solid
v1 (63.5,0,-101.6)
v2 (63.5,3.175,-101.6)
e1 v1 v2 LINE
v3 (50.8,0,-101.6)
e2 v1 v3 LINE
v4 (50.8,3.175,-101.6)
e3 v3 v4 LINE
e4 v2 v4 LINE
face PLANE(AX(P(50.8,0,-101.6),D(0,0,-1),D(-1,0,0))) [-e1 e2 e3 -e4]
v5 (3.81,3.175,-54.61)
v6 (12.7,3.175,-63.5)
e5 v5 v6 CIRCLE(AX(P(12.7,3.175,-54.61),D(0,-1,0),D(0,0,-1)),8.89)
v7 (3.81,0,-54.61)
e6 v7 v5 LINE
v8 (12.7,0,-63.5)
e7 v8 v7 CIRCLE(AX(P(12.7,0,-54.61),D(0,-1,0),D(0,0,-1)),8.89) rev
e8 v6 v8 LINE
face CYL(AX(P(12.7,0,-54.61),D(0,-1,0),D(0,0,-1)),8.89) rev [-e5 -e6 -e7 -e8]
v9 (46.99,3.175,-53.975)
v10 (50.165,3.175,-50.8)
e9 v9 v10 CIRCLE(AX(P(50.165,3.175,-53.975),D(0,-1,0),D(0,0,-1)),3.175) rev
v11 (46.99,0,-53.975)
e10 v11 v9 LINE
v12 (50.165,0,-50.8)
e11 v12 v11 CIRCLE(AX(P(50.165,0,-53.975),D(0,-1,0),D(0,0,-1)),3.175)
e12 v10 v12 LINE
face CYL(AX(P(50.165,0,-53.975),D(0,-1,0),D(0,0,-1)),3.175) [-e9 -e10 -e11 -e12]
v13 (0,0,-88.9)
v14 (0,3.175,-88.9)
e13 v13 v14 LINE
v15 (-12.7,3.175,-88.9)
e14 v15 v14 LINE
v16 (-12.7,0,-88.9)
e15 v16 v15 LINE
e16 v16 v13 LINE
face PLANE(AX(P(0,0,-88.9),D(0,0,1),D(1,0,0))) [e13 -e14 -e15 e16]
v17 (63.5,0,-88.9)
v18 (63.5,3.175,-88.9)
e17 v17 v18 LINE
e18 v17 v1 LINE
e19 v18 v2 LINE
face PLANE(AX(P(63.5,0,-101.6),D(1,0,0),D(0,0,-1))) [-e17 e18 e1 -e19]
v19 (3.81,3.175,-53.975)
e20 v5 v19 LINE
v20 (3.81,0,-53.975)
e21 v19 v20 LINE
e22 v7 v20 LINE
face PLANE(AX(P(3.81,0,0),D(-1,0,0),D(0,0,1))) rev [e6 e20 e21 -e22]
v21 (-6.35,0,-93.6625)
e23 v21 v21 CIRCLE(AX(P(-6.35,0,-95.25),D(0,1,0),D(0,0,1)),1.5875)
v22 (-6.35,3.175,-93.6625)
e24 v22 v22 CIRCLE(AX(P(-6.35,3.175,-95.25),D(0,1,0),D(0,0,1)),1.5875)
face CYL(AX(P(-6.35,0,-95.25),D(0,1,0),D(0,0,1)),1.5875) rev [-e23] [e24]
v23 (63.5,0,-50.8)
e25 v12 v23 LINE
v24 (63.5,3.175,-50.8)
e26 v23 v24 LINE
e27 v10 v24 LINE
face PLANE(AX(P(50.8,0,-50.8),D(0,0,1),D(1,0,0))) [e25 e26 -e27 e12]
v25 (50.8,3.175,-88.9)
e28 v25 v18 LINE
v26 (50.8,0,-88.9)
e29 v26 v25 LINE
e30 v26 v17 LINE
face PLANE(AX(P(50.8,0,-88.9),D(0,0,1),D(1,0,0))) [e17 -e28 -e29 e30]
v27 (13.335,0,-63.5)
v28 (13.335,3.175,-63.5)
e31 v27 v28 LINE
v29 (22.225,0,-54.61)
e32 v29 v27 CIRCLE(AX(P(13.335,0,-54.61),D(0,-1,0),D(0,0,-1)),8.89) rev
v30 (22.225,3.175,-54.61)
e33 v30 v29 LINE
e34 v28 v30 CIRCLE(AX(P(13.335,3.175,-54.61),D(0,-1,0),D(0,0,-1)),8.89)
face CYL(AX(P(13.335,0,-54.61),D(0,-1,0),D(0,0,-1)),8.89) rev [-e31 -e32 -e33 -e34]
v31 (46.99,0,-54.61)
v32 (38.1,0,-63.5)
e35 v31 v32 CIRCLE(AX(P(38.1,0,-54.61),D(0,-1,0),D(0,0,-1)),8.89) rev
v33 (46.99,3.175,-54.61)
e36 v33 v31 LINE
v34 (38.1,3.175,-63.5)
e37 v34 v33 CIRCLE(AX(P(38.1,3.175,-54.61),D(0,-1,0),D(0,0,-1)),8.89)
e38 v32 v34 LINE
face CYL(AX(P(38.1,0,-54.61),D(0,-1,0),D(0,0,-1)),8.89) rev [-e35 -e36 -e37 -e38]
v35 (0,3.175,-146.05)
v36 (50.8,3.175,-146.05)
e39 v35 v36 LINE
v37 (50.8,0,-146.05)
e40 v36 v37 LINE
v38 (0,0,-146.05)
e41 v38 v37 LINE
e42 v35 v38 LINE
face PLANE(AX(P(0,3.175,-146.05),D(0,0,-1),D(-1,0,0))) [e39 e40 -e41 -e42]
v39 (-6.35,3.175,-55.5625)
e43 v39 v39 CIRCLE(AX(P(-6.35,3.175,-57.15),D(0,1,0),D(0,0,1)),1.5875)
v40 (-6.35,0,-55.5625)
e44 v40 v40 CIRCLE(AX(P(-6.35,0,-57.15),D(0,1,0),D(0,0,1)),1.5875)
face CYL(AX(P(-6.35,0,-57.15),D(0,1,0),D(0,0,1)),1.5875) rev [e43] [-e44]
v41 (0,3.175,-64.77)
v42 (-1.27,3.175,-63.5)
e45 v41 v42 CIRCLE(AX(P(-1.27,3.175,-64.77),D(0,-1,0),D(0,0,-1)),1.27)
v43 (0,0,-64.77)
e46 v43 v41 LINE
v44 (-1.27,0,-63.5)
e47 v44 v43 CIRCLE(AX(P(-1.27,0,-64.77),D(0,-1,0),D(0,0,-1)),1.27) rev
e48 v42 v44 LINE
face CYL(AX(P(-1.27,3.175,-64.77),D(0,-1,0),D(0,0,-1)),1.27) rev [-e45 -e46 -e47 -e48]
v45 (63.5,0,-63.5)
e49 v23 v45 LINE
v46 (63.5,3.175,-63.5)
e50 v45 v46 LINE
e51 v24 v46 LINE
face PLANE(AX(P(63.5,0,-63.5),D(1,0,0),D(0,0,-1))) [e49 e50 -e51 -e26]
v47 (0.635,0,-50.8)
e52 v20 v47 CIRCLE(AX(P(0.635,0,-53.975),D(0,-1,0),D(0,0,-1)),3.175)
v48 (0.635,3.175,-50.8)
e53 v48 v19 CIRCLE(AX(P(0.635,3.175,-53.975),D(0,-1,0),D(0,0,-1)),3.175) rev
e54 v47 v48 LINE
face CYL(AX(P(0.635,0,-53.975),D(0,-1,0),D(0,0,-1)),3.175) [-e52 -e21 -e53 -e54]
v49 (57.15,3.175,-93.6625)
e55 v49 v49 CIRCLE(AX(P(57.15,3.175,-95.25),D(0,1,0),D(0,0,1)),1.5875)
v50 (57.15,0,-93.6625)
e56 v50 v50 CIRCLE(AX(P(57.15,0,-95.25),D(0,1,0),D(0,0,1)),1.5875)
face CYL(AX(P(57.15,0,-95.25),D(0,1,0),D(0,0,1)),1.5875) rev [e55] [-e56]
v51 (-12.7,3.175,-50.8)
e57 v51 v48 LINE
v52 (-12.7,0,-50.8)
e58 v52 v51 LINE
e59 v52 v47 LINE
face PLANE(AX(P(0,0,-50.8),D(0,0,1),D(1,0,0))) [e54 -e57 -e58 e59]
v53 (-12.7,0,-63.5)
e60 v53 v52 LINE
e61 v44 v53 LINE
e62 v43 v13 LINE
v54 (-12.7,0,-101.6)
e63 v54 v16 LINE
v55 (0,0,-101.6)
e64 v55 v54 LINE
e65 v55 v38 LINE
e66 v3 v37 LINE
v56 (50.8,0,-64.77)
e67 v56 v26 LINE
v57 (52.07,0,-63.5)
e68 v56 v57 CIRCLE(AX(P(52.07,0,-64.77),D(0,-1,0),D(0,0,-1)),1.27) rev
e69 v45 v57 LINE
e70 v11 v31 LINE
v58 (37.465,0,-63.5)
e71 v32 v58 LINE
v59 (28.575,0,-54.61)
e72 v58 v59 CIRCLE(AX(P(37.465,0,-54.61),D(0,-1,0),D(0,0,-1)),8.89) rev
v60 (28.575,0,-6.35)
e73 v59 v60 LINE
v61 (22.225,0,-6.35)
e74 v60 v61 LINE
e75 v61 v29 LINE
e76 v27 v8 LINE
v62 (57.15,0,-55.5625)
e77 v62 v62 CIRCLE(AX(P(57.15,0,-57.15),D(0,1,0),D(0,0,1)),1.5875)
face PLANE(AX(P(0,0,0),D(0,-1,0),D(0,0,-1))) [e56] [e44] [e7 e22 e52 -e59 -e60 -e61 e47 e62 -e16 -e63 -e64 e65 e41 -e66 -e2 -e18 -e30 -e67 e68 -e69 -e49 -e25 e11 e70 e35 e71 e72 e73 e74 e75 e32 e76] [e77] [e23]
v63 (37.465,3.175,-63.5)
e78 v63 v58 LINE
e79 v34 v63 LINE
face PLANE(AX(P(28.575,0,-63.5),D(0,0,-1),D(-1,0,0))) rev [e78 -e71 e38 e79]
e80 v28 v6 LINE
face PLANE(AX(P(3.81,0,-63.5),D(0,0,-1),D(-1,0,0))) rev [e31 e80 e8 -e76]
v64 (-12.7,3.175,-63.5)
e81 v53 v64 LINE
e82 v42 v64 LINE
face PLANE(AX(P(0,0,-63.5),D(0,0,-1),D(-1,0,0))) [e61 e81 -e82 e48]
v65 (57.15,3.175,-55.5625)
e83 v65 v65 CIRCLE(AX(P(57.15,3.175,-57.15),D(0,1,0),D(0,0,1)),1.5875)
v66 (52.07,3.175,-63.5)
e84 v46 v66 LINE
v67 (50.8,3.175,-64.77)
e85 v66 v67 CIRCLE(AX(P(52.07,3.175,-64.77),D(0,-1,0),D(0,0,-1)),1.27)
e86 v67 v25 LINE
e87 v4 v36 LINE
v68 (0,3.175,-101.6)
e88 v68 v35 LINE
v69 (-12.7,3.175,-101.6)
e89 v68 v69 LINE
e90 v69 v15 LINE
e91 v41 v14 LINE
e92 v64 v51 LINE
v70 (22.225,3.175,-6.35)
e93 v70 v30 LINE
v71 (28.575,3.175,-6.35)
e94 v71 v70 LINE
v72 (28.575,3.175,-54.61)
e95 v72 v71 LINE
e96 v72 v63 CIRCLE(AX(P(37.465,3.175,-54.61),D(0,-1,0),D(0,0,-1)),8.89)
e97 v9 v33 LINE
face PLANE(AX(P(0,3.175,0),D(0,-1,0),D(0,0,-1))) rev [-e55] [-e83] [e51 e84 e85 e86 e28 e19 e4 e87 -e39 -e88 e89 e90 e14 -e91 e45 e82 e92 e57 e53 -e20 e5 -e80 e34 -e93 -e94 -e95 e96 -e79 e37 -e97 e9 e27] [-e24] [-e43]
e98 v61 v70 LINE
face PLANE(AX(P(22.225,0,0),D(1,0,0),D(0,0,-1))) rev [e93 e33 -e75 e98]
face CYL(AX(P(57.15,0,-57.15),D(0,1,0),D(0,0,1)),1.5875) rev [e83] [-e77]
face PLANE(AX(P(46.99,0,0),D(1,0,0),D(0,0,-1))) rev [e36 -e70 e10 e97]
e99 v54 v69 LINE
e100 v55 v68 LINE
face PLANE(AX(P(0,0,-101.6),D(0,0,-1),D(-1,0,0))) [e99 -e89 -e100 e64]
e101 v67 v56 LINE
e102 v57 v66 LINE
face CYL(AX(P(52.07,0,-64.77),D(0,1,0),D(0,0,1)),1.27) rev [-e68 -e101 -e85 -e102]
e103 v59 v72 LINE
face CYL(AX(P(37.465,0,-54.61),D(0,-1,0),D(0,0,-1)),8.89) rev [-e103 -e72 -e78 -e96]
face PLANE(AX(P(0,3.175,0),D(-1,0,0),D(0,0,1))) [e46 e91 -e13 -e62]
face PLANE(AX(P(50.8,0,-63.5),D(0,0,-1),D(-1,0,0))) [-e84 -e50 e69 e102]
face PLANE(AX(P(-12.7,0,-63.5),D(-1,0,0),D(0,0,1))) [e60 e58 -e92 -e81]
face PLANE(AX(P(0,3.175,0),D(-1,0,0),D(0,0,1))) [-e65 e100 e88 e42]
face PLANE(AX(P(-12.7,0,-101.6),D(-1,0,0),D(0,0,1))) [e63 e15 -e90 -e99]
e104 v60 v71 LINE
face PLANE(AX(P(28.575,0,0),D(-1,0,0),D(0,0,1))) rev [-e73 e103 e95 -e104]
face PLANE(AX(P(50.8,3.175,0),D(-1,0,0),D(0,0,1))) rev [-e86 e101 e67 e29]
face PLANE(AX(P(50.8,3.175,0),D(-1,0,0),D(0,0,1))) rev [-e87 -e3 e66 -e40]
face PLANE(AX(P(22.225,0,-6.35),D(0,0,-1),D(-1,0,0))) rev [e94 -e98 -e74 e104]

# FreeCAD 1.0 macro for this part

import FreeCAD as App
import Part
import Sketcher

V = App.Vector
Q = App.Units.Quantity


def edges_at(feature, points):
    """Names of the edges that pass closest to the given points."""
    edges = feature.Shape.Edges
    near = lambda p: min(range(len(edges)), key=lambda i: edges[i].distToShape(Part.Vertex(*p))[0])
    return sorted({f"Edge{near(p) + 1}" for p in points})

doc = App.newDocument("Part")
body = doc.addObject("PartDesign::Body", "Body")

# Sketch on XZ plane
sketch1 = body.newObject("Sketcher::SketchObject", "Sketch")
sketch1.AttachmentSupport = (doc.getObject("XZ_Plane"), [""])
sketch1.MapMode = "FlatFace"
sketch1.addGeometry([
    Part.LineSegment(V(0, -76, 0), V(0, 0, 0)),
    Part.LineSegment(V(0, 0, 0), V(51, 0, 0)),
    Part.LineSegment(V(51, 0, 0), V(51, -76, 0)),
    Part.LineSegment(V(51, -76, 0), V(0, -76, 0)),
], False)
sketch1.addConstraint([
    Sketcher.Constraint("Coincident", 0, 2, 1, 1),
    Sketcher.Constraint("Coincident", 1, 2, 2, 1),
    Sketcher.Constraint("Coincident", 2, 2, 3, 1),
    Sketcher.Constraint("Coincident", 3, 2, 0, 1),
    Sketcher.Constraint("Vertical", 0),
    Sketcher.Constraint("Horizontal", 1),
    Sketcher.Constraint("Vertical", 2),
    Sketcher.Constraint("Horizontal", 3),
    Sketcher.Constraint("Coincident", 0, 2, -1, 1),
    Sketcher.Constraint("DistanceX", 1, 1, 1, 2, Q("2 in")),
    Sketcher.Constraint("DistanceY", 0, 1, 0, 2, Q("3 in")),
])
pad1 = body.newObject("PartDesign::Pad", "Pad")
pad1.Profile = sketch1
pad1.Length = Q("0.125 in")
pad1.Reversed = True

# Sketch on XZ plane
sketch2 = body.newObject("Sketcher::SketchObject", "Sketch001")
sketch2.AttachmentSupport = (doc.getObject("XZ_Plane"), [""])
sketch2.MapMode = "FlatFace"
sketch2.AttachmentOffset = App.Placement(V(0, 0, -0.125 * 25.4), App.Rotation())
sketch2.addGeometry([
    Part.LineSegment(V(4, -64, 0), V(4, 0, 0)),  # 0
    Part.LineSegment(V(4, 0, 0), V(22, 0, 0)),  # 1
    Part.LineSegment(V(22, 0, 0), V(22, -64, 0)),  # 2
    Part.LineSegment(V(22, -64, 0), V(4, -64, 0)),  # 3
    Part.LineSegment(V(29, -64, 0), V(29, 0, 0)),  # 4
    Part.LineSegment(V(29, 0, 0), V(47, 0, 0)),  # 5
    Part.LineSegment(V(47, 0, 0), V(47, -64, 0)),  # 6
    Part.LineSegment(V(47, -64, 0), V(29, -64, 0)),  # 7
], False)
sketch2.addConstraint([
    Sketcher.Constraint("Coincident", 0, 2, 1, 1),
    Sketcher.Constraint("Coincident", 1, 2, 2, 1),
    Sketcher.Constraint("Coincident", 2, 2, 3, 1),
    Sketcher.Constraint("Coincident", 3, 2, 0, 1),
    Sketcher.Constraint("Coincident", 4, 2, 5, 1),
    Sketcher.Constraint("Coincident", 5, 2, 6, 1),
    Sketcher.Constraint("Coincident", 6, 2, 7, 1),
    Sketcher.Constraint("Coincident", 7, 2, 4, 1),
    Sketcher.Constraint("Vertical", 0),
    Sketcher.Constraint("Horizontal", 1),
    Sketcher.Constraint("Vertical", 2),
    Sketcher.Constraint("Horizontal", 3),
    Sketcher.Constraint("Vertical", 4),
    Sketcher.Constraint("Horizontal", 5),
    Sketcher.Constraint("Vertical", 6),
    Sketcher.Constraint("Horizontal", 7),
    Sketcher.Constraint("PointOnObject", 0, 2, -1),
    Sketcher.Constraint("PointOnObject", 4, 2, -1),
    Sketcher.Constraint("Horizontal", 3, 2, 6, 2),
    Sketcher.Constraint("Equal", 3, 5),
    Sketcher.Constraint("DistanceY", 0, 1, 0, 2, Q("2.5 in")),
    Sketcher.Constraint("DistanceX", 0, 2, 5, 2, Q("1.7 in")),
    Sketcher.Constraint("DistanceX", 1, 1, 1, 2, Q("0.725 in")),
    Sketcher.Constraint("DistanceX", -1, 1, 0, 2, Q("0.15 in")),
])
pocket1 = body.newObject("PartDesign::Pocket", "Pocket")
pocket1.Profile = sketch2
pocket1.Length = Q("0.125 in")
pocket1.Reversed = True

# Sketch on XZ plane
sketch3 = body.newObject("Sketcher::SketchObject", "Sketch002")
sketch3.AttachmentSupport = (doc.getObject("XZ_Plane"), [""])
sketch3.MapMode = "FlatFace"
sketch3.AttachmentOffset = App.Placement(V(0, 0, -0.125 * 25.4), App.Rotation())
sketch3.addGeometry([
    Part.LineSegment(V(-12.7, -63.5, 0), V(-12.7, -50.8, 0)),  # 0
    Part.LineSegment(V(-12.7, -50.8, 0), V(0, -50.8, 0)),  # 1
    Part.LineSegment(V(0, -50.8, 0), V(0, -63.5, 0)),  # 2
    Part.LineSegment(V(0, -63.5, 0), V(-12.7, -63.5, 0)),  # 3
    Part.Circle(V(-6.3, -57.1, 0), V(0, 0, 1), 1.6),  # 4
    Part.LineSegment(V(50.8, -63.5, 0), V(50.8, -50.8, 0)),  # 5
    Part.LineSegment(V(50.8, -50.8, 0), V(63.5, -50.8, 0)),  # 6
    Part.LineSegment(V(63.5, -50.8, 0), V(63.5, -63.5, 0)),  # 7
    Part.LineSegment(V(63.5, -63.5, 0), V(50.8, -63.5, 0)),  # 8
    Part.Circle(V(57.1, -57.1, 0), V(0, 0, 1), 1.6),  # 9
], False)
sketch3.addConstraint([
    Sketcher.Constraint("Coincident", 0, 2, 1, 1),
    Sketcher.Constraint("Coincident", 1, 2, 2, 1),
    Sketcher.Constraint("Coincident", 2, 2, 3, 1),
    Sketcher.Constraint("Coincident", 3, 2, 0, 1),
    Sketcher.Constraint("Coincident", 5, 2, 6, 1),
    Sketcher.Constraint("Coincident", 6, 2, 7, 1),
    Sketcher.Constraint("Coincident", 7, 2, 8, 1),
    Sketcher.Constraint("Coincident", 8, 2, 5, 1),
    Sketcher.Constraint("Vertical", 0),
    Sketcher.Constraint("Horizontal", 1),
    Sketcher.Constraint("Vertical", 2),
    Sketcher.Constraint("Horizontal", 3),
    Sketcher.Constraint("Vertical", 5),
    Sketcher.Constraint("Horizontal", 6),
    Sketcher.Constraint("Vertical", 7),
    Sketcher.Constraint("Horizontal", 8),
    Sketcher.Constraint("Equal", 4, 9),
    Sketcher.Constraint("PointOnObject", 1, 2, -2),
    Sketcher.Constraint("Horizontal", 4, 3, 9, 3),
    Sketcher.Constraint("Horizontal", 1, 2, 5, 2),
    Sketcher.Constraint("Horizontal", 3, 2, 7, 2),
    Sketcher.Constraint("Equal", 3, 6),
    Sketcher.Constraint("Equal", 8, 0),
    Sketcher.Constraint("Diameter", 4, Q("0.125 in")),
    Sketcher.Constraint("DistanceX", 1, 1, 1, 2, Q("0.5 in")),
    Sketcher.Constraint("DistanceY", 0, 2, -1, 1, Q("2 in")),
    Sketcher.Constraint("DistanceX", -1, 1, 5, 2, Q("2 in")),
    Sketcher.Constraint("DistanceX", 4, 3, 9, 3, Q("2.5 in")),
    Sketcher.Constraint("DistanceX", 4, 3, -1, 1, Q("0.25 in")),
    Sketcher.Constraint("DistanceY", 4, 3, -1, 1, Q("2.25 in")),
])
pad2 = body.newObject("PartDesign::Pad", "Pad001")
pad2.Profile = sketch3
pad2.Length = Q("0.125 in")

# Sketch on XZ plane
sketch4 = body.newObject("Sketcher::SketchObject", "Sketch003")
sketch4.AttachmentSupport = (doc.getObject("XZ_Plane"), [""])
sketch4.MapMode = "FlatFace"
sketch4.AttachmentOffset = App.Placement(V(0, 0, -0.125 * 25.4), App.Rotation())
sketch4.addGeometry([
    Part.LineSegment(V(0, -89, 0), V(0, -76, 0)),
    Part.LineSegment(V(0, -76, 0), V(51, -76, 0)),
    Part.LineSegment(V(51, -76, 0), V(51, -89, 0)),
    Part.LineSegment(V(51, -89, 0), V(0, -89, 0)),
], False)
sketch4.addConstraint([
    Sketcher.Constraint("Coincident", 0, 2, 1, 1),
    Sketcher.Constraint("Coincident", 1, 2, 2, 1),
    Sketcher.Constraint("Coincident", 2, 2, 3, 1),
    Sketcher.Constraint("Coincident", 3, 2, 0, 1),
    Sketcher.Constraint("Vertical", 0),
    Sketcher.Constraint("Horizontal", 1),
    Sketcher.Constraint("Vertical", 2),
    Sketcher.Constraint("Horizontal", 3),
    Sketcher.Constraint("PointOnObject", 0, 2, -2),
    Sketcher.Constraint("DistanceX", 1, 1, 1, 2, Q("2 in")),
    Sketcher.Constraint("DistanceY", 0, 1, 0, 2, Q("0.5 in")),
    Sketcher.Constraint("DistanceY", 0, 2, -1, 1, Q("3 in")),
])
pad3 = body.newObject("PartDesign::Pad", "Pad002")
pad3.Profile = sketch4
pad3.Length = Q("0.125 in")

# Sketch on XZ plane
sketch5 = body.newObject("Sketcher::SketchObject", "Sketch004")
sketch5.AttachmentSupport = (doc.getObject("XZ_Plane"), [""])
sketch5.MapMode = "FlatFace"
sketch5.addGeometry([
    Part.LineSegment(V(0, -89, 0), V(0, -146, 0)),
    Part.LineSegment(V(0, -146, 0), V(51, -146, 0)),
    Part.LineSegment(V(51, -146, 0), V(51, -89, 0)),
    Part.LineSegment(V(51, -89, 0), V(0, -89, 0)),
], False)
sketch5.addConstraint([
    Sketcher.Constraint("Coincident", 0, 2, 1, 1),
    Sketcher.Constraint("Coincident", 1, 2, 2, 1),
    Sketcher.Constraint("Coincident", 2, 2, 3, 1),
    Sketcher.Constraint("Coincident", 3, 2, 0, 1),
    Sketcher.Constraint("Vertical", 0),
    Sketcher.Constraint("Horizontal", 1),
    Sketcher.Constraint("Vertical", 2),
    Sketcher.Constraint("Horizontal", 3),
    Sketcher.Constraint("PointOnObject", 0, 2, -2),
    Sketcher.Constraint("DistanceX", 1, 1, 1, 2, Q("2 in")),
    Sketcher.Constraint("DistanceY", 0, 2, 0, 1, Q("2.25 in")),
    Sketcher.Constraint("DistanceY", 2, 2, -1, 1, Q("3.5 in")),
])
pad4 = body.newObject("PartDesign::Pad", "Pad003")
pad4.Profile = sketch5
pad4.Length = Q("0.125 in")
pad4.Reversed = True
doc.recompute()

linearpattern = body.newObject("PartDesign::LinearPattern", "LinearPattern")
linearpattern.Originals = [pad2]
linearpattern.Direction = (doc.getObject("Z_Axis"), [""])
linearpattern.Mode = "offset"
linearpattern.Offset = Q("1.5 in")
linearpattern.Occurrences = 2
linearpattern.Reversed = True
body.Tip = linearpattern
doc.recompute()

fillet = body.newObject("PartDesign::Fillet", "Fillet")
fillet.Base = (linearpattern, edges_at(linearpattern, [
    (3.81, 1.587, -63.5),
    (22.225, 1.587, -63.5),
    (28.575, 1.587, -63.5),
    (46.99, 1.587, -63.5),
]))
fillet.Radius = Q("0.35 in")

# Sketch on XZ plane
sketch6 = body.newObject("Sketcher::SketchObject", "Sketch005")
sketch6.AttachmentSupport = (doc.getObject("XZ_Plane"), [""])
sketch6.MapMode = "FlatFace"
sketch6.AttachmentOffset = App.Placement(V(0, 0, -0.125 * 25.4), App.Rotation())
sketch6.addGeometry([
    Part.LineSegment(V(22, -6, 0), V(22, 0, 0)),
    Part.LineSegment(V(22, 0, 0), V(29, 0, 0)),
    Part.LineSegment(V(29, 0, 0), V(29, -6, 0)),
    Part.LineSegment(V(29, -6, 0), V(22, -6, 0)),
], False)
sketch6.addConstraint([
    Sketcher.Constraint("Coincident", 0, 2, 1, 1),
    Sketcher.Constraint("Coincident", 1, 2, 2, 1),
    Sketcher.Constraint("Coincident", 2, 2, 3, 1),
    Sketcher.Constraint("Coincident", 3, 2, 0, 1),
    Sketcher.Constraint("Vertical", 0),
    Sketcher.Constraint("Horizontal", 1),
    Sketcher.Constraint("Vertical", 2),
    Sketcher.Constraint("Horizontal", 3),
    Sketcher.Constraint("PointOnObject", 0, 2, -1),
    Sketcher.Constraint("Equal", 3, 0),
    Sketcher.Constraint("DistanceX", 1, 1, 1, 2, Q("0.25 in")),
    Sketcher.Constraint("DistanceX", -1, 1, 0, 2, Q("0.875 in")),
])
pocket2 = body.newObject("PartDesign::Pocket", "Pocket001")
pocket2.Profile = sketch6
pocket2.Length = Q("0.125 in")
pocket2.Reversed = True

# Sketch on XZ plane
sketch7 = body.newObject("Sketcher::SketchObject", "Sketch006")
sketch7.AttachmentSupport = (doc.getObject("XZ_Plane"), [""])
sketch7.MapMode = "FlatFace"
sketch7.AttachmentOffset = App.Placement(V(0, 0, -0.125 * 25.4), App.Rotation())
sketch7.addGeometry([
    Part.LineSegment(V(0, -50.8, 0), V(0, 0, 0)),  # 0
    Part.LineSegment(V(0, 0, 0), V(3.8, 0, 0)),  # 1
    Part.LineSegment(V(3.8, 0, 0), V(3.8, -50.8, 0)),  # 2
    Part.LineSegment(V(3.8, -50.8, 0), V(0, -50.8, 0)),  # 3
    Part.LineSegment(V(47, -50.8, 0), V(47, 0, 0)),  # 4
    Part.LineSegment(V(47, 0, 0), V(50.8, 0, 0)),  # 5
    Part.LineSegment(V(50.8, 0, 0), V(50.8, -50.8, 0)),  # 6
    Part.LineSegment(V(50.8, -50.8, 0), V(47, -50.8, 0)),  # 7
], False)
sketch7.addConstraint([
    Sketcher.Constraint("Coincident", 0, 2, 1, 1),
    Sketcher.Constraint("Coincident", 1, 2, 2, 1),
    Sketcher.Constraint("Coincident", 2, 2, 3, 1),
    Sketcher.Constraint("Coincident", 3, 2, 0, 1),
    Sketcher.Constraint("Coincident", 4, 2, 5, 1),
    Sketcher.Constraint("Coincident", 5, 2, 6, 1),
    Sketcher.Constraint("Coincident", 6, 2, 7, 1),
    Sketcher.Constraint("Coincident", 7, 2, 4, 1),
    Sketcher.Constraint("Vertical", 0),
    Sketcher.Constraint("Horizontal", 1),
    Sketcher.Constraint("Vertical", 2),
    Sketcher.Constraint("Horizontal", 3),
    Sketcher.Constraint("Vertical", 4),
    Sketcher.Constraint("Horizontal", 5),
    Sketcher.Constraint("Vertical", 6),
    Sketcher.Constraint("Horizontal", 7),
    Sketcher.Constraint("Coincident", 0, 2, -1, 1),
    Sketcher.Constraint("PointOnObject", 4, 2, -1),
    Sketcher.Constraint("Horizontal", 3, 2, 6, 2),
    Sketcher.Constraint("Equal", 3, 5),
    Sketcher.Constraint("DistanceY", 0, 1, 0, 2, Q("2 in")),
    Sketcher.Constraint("DistanceX", -1, 1, 5, 2, Q("2 in")),
    Sketcher.Constraint("DistanceX", 1, 1, 1, 2, Q("0.15 in")),
])
pocket3 = body.newObject("PartDesign::Pocket", "Pocket002")
pocket3.Profile = sketch7
pocket3.Length = Q("0.125 in")
pocket3.Reversed = True
doc.recompute()

fillet2 = body.newObject("PartDesign::Fillet", "Fillet001")
fillet2.Base = (pocket3, edges_at(pocket3, [(3.81, 1.587, -50.8), (46.99, 1.587, -50.8)]))
fillet2.Radius = Q("0.125 in")
doc.recompute()

fillet3 = body.newObject("PartDesign::Fillet", "Fillet002")
fillet3.Base = (fillet2, edges_at(fillet2, [(0, 1.587, -63.5), (50.8, 1.587, -63.5)]))
fillet3.Radius = Q("0.05 in")

doc.recompute()
